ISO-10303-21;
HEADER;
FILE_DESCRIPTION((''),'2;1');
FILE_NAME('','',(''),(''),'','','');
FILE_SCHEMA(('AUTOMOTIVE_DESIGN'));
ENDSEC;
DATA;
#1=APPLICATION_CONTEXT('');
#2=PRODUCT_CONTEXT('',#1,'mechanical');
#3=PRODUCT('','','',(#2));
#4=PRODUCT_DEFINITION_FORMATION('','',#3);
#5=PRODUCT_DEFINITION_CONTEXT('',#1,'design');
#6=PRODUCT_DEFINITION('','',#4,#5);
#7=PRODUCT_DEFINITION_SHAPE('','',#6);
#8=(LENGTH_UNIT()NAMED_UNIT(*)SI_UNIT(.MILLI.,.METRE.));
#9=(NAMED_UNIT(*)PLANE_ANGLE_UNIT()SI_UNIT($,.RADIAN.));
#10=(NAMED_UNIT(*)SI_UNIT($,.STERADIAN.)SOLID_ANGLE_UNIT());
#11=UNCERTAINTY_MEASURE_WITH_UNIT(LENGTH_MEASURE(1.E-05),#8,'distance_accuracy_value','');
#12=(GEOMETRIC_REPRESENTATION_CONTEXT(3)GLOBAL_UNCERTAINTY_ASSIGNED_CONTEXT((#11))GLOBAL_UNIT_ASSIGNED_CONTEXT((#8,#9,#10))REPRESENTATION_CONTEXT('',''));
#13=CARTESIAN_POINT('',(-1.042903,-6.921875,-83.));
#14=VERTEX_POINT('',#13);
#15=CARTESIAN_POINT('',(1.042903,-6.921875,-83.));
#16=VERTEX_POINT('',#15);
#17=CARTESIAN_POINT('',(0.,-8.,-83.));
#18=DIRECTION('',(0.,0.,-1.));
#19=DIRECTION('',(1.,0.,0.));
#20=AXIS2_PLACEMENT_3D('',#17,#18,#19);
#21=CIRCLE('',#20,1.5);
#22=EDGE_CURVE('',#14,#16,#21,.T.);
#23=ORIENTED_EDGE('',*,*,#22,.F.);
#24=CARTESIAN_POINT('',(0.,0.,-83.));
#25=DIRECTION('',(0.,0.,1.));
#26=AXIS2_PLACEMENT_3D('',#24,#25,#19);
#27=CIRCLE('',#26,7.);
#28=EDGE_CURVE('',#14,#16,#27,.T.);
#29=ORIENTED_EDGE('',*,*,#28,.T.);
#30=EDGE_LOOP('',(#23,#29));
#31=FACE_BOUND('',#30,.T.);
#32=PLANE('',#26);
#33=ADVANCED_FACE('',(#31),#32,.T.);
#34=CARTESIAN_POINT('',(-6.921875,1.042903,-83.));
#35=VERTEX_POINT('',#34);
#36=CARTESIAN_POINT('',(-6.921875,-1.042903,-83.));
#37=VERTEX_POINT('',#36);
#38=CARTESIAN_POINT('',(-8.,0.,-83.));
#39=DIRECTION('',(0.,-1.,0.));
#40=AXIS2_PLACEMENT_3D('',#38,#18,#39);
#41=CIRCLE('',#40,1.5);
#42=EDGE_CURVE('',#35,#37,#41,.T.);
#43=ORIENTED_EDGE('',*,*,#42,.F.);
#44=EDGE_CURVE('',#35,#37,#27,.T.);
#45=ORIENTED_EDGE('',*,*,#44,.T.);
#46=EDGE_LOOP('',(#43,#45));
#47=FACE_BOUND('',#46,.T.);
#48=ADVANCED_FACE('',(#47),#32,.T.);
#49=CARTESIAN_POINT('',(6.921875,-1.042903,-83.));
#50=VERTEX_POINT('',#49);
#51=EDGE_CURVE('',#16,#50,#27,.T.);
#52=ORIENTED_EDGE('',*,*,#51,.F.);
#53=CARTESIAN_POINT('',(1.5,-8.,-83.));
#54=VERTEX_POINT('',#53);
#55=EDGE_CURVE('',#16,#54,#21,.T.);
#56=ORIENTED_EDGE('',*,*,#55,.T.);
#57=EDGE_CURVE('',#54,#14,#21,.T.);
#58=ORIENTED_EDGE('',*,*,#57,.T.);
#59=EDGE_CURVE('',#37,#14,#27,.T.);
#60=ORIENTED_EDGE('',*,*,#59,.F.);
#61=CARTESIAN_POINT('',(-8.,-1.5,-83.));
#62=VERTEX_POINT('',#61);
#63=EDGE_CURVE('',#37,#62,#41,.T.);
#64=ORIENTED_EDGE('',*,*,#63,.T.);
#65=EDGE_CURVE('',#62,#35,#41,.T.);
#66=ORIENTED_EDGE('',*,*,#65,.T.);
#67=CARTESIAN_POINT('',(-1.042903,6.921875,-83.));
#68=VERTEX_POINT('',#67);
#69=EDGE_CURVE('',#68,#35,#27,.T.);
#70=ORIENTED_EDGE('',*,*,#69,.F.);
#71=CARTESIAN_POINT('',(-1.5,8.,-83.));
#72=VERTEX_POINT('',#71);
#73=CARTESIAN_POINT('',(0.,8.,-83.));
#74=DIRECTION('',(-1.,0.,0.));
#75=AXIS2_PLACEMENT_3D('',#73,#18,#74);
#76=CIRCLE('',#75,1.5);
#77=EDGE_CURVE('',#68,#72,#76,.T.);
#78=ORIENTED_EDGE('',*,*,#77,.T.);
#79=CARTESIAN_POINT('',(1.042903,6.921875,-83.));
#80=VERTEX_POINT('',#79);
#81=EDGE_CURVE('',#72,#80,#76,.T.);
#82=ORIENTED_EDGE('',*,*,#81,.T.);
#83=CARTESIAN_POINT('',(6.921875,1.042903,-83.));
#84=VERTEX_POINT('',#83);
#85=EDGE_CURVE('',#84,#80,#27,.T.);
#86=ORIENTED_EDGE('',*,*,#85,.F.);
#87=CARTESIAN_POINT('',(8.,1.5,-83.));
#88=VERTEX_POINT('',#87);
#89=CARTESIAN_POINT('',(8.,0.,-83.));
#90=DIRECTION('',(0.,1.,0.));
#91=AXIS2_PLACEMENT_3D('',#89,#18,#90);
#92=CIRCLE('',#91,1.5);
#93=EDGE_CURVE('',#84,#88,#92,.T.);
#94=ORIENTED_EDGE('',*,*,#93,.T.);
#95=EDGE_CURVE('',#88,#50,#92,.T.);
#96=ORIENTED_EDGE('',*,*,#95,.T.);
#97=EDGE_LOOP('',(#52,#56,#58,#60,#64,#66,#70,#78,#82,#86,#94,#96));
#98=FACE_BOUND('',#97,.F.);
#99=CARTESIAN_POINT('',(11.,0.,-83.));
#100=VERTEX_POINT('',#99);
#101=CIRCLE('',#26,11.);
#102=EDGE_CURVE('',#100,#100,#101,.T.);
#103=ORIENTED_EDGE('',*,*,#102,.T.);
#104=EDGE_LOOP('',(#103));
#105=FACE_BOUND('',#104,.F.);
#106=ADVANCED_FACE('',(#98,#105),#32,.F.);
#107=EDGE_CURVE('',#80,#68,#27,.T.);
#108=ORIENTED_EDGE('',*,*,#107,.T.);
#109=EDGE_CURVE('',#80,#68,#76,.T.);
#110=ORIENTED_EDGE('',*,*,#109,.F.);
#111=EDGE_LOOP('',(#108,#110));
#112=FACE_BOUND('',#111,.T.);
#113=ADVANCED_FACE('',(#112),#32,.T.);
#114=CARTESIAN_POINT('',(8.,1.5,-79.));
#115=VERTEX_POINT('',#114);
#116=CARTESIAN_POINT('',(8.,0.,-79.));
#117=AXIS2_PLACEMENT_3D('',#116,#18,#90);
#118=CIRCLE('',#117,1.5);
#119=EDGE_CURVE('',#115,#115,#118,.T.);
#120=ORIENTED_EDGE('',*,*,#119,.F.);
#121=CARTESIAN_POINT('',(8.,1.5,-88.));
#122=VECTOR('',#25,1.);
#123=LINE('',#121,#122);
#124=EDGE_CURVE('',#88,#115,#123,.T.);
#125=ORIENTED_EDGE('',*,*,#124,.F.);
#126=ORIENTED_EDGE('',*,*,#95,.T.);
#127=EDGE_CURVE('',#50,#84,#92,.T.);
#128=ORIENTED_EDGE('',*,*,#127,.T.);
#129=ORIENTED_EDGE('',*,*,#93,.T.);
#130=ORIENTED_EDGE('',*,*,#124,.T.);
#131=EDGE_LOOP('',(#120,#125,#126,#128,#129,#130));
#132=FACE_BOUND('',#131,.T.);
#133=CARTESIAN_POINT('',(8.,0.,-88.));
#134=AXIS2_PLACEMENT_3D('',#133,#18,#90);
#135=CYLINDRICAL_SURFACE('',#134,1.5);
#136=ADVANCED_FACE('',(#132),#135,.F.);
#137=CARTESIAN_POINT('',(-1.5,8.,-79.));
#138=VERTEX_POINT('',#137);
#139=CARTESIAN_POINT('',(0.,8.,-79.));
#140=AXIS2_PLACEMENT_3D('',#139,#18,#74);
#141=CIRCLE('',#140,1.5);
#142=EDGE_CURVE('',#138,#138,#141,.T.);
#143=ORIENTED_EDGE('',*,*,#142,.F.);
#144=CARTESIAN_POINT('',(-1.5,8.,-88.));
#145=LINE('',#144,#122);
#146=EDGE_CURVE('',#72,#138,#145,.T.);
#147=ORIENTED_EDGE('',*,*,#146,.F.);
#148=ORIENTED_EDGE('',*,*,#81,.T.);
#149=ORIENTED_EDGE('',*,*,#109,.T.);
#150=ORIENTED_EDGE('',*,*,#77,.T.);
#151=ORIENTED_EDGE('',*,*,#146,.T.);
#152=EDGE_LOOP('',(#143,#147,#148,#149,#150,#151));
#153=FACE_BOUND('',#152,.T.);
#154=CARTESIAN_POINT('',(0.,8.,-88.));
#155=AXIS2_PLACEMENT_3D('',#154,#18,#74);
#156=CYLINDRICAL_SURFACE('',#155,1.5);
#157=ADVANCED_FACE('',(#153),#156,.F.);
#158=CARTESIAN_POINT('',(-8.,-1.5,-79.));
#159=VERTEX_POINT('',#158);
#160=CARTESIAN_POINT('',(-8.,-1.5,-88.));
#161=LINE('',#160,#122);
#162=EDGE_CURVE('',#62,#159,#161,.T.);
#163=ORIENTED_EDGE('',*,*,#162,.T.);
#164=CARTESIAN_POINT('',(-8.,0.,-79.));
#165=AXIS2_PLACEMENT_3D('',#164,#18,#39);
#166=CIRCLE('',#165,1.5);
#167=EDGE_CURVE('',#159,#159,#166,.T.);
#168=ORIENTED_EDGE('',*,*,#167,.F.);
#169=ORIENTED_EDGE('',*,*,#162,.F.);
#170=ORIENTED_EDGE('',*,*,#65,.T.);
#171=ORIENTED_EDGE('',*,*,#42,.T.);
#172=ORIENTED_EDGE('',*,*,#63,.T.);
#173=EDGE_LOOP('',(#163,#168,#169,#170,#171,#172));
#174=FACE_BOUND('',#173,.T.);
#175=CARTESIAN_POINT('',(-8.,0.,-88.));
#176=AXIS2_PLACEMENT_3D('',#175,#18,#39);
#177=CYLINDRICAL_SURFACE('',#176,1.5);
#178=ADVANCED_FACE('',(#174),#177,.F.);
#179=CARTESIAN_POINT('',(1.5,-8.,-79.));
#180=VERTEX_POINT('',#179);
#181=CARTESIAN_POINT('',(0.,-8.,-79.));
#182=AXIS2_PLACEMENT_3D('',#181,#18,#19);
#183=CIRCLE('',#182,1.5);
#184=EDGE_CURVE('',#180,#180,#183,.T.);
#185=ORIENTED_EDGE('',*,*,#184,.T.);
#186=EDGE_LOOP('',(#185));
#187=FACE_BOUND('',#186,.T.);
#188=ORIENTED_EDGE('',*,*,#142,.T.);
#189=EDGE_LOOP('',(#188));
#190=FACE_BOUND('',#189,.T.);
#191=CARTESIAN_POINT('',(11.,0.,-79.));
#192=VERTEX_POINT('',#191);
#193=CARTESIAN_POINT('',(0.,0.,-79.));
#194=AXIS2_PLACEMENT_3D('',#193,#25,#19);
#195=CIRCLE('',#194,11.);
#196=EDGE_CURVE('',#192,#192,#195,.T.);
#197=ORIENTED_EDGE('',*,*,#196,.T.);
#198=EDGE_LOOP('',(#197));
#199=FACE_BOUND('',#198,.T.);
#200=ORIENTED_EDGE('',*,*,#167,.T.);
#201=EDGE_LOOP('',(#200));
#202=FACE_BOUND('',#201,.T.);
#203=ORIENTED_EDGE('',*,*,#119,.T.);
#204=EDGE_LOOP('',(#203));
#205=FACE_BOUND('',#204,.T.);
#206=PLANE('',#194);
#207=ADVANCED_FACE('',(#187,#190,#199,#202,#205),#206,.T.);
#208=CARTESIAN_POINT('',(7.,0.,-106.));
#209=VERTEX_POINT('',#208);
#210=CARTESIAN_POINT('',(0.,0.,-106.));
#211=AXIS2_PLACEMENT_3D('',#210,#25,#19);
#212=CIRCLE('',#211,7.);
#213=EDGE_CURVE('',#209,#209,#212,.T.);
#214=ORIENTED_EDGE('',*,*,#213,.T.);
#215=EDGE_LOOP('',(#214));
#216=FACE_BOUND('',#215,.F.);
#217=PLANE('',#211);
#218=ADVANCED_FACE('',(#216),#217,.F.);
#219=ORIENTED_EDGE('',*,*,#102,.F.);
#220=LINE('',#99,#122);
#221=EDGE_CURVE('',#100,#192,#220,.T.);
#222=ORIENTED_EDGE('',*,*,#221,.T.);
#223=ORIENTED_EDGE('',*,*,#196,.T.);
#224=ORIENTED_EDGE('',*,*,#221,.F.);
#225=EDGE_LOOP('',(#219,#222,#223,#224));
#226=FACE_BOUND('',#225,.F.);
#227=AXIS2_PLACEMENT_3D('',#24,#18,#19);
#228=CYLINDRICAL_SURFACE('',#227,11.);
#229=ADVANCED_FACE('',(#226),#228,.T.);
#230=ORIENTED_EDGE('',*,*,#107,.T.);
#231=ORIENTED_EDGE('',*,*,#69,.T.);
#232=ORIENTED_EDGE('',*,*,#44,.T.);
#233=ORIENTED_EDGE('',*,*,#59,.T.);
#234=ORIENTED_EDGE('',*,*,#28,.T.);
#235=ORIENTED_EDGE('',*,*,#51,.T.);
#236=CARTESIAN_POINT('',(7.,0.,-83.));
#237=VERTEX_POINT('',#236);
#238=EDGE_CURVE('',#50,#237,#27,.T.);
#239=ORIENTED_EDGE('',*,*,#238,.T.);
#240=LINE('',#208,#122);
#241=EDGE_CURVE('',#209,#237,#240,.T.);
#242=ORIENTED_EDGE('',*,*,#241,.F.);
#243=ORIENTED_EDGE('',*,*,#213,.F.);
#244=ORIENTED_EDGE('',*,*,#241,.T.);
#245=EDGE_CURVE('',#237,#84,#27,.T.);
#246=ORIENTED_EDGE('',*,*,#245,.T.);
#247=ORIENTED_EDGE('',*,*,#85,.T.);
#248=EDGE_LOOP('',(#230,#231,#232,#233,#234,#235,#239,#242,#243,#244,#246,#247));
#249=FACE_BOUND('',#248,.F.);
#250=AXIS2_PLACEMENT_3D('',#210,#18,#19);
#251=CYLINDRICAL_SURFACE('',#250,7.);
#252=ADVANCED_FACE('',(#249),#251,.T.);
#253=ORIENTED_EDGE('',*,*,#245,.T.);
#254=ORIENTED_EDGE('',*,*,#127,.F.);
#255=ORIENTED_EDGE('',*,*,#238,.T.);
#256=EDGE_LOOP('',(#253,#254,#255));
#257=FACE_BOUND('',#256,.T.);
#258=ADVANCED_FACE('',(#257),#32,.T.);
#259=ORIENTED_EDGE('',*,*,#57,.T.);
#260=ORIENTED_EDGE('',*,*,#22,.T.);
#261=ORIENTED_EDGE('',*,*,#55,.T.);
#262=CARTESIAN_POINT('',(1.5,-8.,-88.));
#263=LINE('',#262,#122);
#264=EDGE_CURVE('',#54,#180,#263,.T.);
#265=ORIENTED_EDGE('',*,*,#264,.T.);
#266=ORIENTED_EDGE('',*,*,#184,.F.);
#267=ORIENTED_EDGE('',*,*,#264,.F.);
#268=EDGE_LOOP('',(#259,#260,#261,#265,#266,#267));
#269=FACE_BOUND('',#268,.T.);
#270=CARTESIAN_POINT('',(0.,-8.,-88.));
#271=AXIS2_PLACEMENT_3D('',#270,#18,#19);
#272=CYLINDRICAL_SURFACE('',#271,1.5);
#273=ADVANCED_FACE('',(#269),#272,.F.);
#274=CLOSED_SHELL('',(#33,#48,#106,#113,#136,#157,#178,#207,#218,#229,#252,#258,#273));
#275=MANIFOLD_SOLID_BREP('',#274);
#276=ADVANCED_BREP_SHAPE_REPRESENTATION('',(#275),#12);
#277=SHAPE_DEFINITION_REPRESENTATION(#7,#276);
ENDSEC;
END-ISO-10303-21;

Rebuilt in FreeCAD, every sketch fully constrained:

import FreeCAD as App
import Part
import Sketcher

doc = App.newDocument("Part")
params = doc.addObject("Spreadsheet::Sheet", "Params")
for row, (alias, value) in enumerate([
    ("sketch1_diameter", "14 mm"),
    ("pad1_length", "23 mm"),
    ("sketch2_diameter", "3 mm"),
    ("pad2_length", "20 mm"),
    ("sketch3_diameter", "22 mm"),
    ("pad3_length", "4 mm"),
], start=1):
    params.set(f"A{row}", alias)
    params.set(f"B{row}", "=" + value)
    params.setAlias(f"B{row}", alias)

body = doc.addObject("PartDesign::Body", "Body")

# Sketch on XY plane
sketch1 = doc.addObject("Sketcher::SketchObject", "Sketch")
body.addObject(sketch1)
sketch1.AttachmentSupport = (doc.XY_Plane, [""])
sketch1.MapMode = "FlatFace"
sketch1.AttachmentOffset = App.Placement(App.Vector(0, 0, -23), App.Rotation())
sketch1.addGeometry(Part.Circle(App.Vector(0, 0, 0), App.Vector(0, 0, 1), 7), False)
sketch1.addConstraint(Sketcher.Constraint("Coincident", 0, 3, -1, 1))
sketch1.addConstraint(Sketcher.Constraint("Diameter", 0, 14.0))
sketch1.setExpression("Constraints[1]", "Params.sketch1_diameter")
pad1 = doc.addObject("PartDesign::Pad", "Pad")
body.addObject(pad1)
pad1.Profile = sketch1
pad1.setExpression("Length", "Params.pad1_length")
body2 = doc.addObject("PartDesign::Body", "Body001")

# Sketch on XY plane
sketch2 = doc.addObject("Sketcher::SketchObject", "Sketch001")
body2.addObject(sketch2)
sketch2.AttachmentSupport = (doc.getObject("XY_Plane001"), [""])
sketch2.MapMode = "FlatFace"
sketch2.AttachmentOffset = App.Placement(App.Vector(0, 0, -5), App.Rotation())
sketch2.addGeometry(Part.Circle(App.Vector(0, -8, 0), App.Vector(0, 0, 1), 1.5), False)
sketch2.addConstraint(Sketcher.Constraint("PointOnObject", 0, 3, -2))
sketch2.addConstraint(Sketcher.Constraint("Diameter", 0, 3.0))
sketch2.addConstraint(Sketcher.Constraint("DistanceY", 0, 3, -1, 1, 8.0))
sketch2.setExpression("Constraints[1]", "Params.sketch2_diameter")
pad2 = doc.addObject("PartDesign::Pad", "Pad001")
body2.addObject(pad2)
pad2.Profile = sketch2
pad2.setExpression("Length", "Params.pad2_length")
body3 = doc.addObject("PartDesign::Body", "Body002")
body3.AllowCompound = True
doc.recompute()

body3.BaseFeature = body2
doc.recompute()

body4 = doc.addObject("PartDesign::Body", "Body003")
body4.BaseFeature = body2
body4.Placement = App.Placement(App.Vector(0, 0, 0), App.Rotation(App.Vector(0, 0, 1), 90))
boolean = doc.addObject("PartDesign::Boolean", "Boolean")
body3.addObject(boolean)
boolean.Type = "Fuse"
boolean.addObjects([body4])
doc.recompute()

body5 = doc.addObject("PartDesign::Body", "Body004")
body5.BaseFeature = body2
body5.Placement = App.Placement(App.Vector(0, 0, 0), App.Rotation(App.Vector(0, 0, 1), 180))
boolean2 = doc.addObject("PartDesign::Boolean", "Boolean001")
body3.addObject(boolean2)
boolean2.Type = "Fuse"
boolean2.addObjects([body5])
doc.recompute()

body2.Placement = App.Placement(App.Vector(0, 0, 0), App.Rotation(App.Vector(0, 0, 1), 270))
boolean3 = doc.addObject("PartDesign::Boolean", "Boolean002")
body3.addObject(boolean3)
boolean3.Type = "Fuse"
boolean3.addObjects([body2])
body6 = doc.addObject("PartDesign::Body", "Body005")

# Sketch on XY plane
sketch3 = doc.addObject("Sketcher::SketchObject", "Sketch002")
body6.addObject(sketch3)
sketch3.AttachmentSupport = (doc.getObject("XY_Plane005"), [""])
sketch3.MapMode = "FlatFace"
sketch3.addGeometry(Part.Circle(App.Vector(0, 0, 0), App.Vector(0, 0, 1), 11), False)
sketch3.addConstraint(Sketcher.Constraint("Coincident", 0, 3, -1, 1))
sketch3.addConstraint(Sketcher.Constraint("Diameter", 0, 22.0))
sketch3.setExpression("Constraints[1]", "Params.sketch3_diameter")
pad3 = doc.addObject("PartDesign::Pad", "Pad002")
body6.addObject(pad3)
pad3.Profile = sketch3
pad3.setExpression("Length", "Params.pad3_length")
doc.recompute()

boolean4 = doc.addObject("PartDesign::Boolean", "Boolean003")
body6.addObject(boolean4)
boolean4.Type = "Cut"
boolean4.addObjects([body3])
doc.recompute()

boolean5 = doc.addObject("PartDesign::Boolean", "Boolean004")
body6.addObject(boolean5)
boolean5.Type = "Fuse"
boolean5.addObjects([body])
body7 = doc.addObject("PartDesign::Body", "Body006")
doc.recompute()

body6.Placement = App.Placement(App.Vector(0, 0, -83), App.Rotation(App.Vector(0, 0, 1), 0))
boolean6 = doc.addObject("PartDesign::Boolean", "Boolean005")
body7.addObject(boolean6)
boolean6.Type = "Fuse"
boolean6.addObjects([body6])

doc.recompute()
